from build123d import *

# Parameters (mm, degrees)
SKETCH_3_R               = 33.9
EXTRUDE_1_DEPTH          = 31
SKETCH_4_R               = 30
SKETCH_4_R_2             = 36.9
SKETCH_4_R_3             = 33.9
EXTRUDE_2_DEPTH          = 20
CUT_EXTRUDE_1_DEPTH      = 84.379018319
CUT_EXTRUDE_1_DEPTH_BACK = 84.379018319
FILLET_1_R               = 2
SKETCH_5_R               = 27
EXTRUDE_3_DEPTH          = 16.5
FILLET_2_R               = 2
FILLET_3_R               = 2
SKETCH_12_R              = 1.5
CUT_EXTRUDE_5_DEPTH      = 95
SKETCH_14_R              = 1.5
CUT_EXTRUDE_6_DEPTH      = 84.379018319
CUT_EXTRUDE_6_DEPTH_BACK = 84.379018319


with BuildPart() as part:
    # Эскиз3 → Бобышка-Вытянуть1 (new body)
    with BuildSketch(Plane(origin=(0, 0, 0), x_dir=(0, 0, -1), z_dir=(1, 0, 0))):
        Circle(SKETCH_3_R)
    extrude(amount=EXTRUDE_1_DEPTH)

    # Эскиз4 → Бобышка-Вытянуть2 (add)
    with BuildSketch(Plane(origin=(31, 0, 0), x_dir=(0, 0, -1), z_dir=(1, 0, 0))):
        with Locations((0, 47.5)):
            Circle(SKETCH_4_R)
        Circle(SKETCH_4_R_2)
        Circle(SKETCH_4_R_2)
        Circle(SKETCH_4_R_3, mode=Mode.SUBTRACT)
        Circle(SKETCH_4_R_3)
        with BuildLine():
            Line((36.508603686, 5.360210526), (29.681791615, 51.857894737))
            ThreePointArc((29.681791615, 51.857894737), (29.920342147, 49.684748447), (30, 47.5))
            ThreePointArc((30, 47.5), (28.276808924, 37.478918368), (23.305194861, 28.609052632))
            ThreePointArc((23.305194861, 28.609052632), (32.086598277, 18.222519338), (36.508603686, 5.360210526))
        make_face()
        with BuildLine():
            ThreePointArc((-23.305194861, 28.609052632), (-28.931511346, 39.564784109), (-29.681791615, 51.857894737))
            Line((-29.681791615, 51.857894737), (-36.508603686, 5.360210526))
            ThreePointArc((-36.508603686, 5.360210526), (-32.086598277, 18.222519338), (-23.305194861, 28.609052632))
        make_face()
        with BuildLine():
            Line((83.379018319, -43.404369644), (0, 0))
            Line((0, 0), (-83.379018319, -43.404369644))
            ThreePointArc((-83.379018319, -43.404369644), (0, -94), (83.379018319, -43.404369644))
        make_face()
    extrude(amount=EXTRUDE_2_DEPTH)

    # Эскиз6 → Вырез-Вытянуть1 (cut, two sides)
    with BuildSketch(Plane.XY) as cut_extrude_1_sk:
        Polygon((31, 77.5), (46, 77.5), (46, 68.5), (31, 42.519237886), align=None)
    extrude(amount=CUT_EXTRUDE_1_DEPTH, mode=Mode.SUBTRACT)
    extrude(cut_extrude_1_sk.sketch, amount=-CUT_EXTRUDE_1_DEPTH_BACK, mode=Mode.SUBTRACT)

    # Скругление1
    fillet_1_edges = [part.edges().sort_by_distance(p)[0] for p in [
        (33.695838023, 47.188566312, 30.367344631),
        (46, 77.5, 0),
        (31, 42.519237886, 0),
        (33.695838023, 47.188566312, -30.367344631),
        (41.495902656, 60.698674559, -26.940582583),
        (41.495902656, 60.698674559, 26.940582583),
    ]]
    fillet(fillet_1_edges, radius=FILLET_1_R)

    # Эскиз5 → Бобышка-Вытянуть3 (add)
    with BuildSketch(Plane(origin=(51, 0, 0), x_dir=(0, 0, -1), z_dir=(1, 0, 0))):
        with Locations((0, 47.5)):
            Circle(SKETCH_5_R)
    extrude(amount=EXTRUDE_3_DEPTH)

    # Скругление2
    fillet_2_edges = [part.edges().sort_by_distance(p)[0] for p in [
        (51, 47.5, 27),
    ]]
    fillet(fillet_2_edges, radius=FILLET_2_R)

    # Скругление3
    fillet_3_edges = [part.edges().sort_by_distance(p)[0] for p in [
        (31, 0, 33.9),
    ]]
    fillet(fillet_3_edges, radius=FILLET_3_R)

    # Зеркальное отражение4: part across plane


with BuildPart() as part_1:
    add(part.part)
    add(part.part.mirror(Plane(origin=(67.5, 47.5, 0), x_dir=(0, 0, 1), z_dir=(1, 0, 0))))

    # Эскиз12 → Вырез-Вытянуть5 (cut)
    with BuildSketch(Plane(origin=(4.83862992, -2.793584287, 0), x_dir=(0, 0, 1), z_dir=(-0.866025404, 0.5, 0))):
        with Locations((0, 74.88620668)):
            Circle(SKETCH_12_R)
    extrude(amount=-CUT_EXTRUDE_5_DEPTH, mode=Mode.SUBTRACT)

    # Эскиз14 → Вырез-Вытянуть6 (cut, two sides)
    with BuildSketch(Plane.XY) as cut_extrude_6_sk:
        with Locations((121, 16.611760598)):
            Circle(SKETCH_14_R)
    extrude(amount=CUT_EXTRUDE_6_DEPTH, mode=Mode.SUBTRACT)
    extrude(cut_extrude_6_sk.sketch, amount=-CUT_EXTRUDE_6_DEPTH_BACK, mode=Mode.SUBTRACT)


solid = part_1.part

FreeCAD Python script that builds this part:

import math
import FreeCAD as App
import Part
import Sketcher
Q = App.Units.Quantity


def edges_at(feature, points):
    """Names of the edges that pass closest to the given points."""
    edges = feature.Shape.Edges
    near = lambda p: min(range(len(edges)), key=lambda i: edges[i].distToShape(Part.Vertex(*p))[0])
    return sorted({f"Edge{near(p) + 1}" for p in points})


def add_polygon(sketch, points):
    """Adds a closed chain of lines whose ends are joined by coincident constraints."""
    first, n = sketch.GeometryCount, len(points)
    for a, b in zip(points, points[1:] + points[:1]):
        sketch.addGeometry(Part.LineSegment(App.Vector(*a, 0), App.Vector(*b, 0)), False)
    for i in range(n):
        sketch.addConstraint(Sketcher.Constraint("Coincident", first + i, 2, first + (i + 1) % n, 1))

doc = App.newDocument("Part")
body = doc.addObject("PartDesign::Body", "Body")

# Sketch on YZ plane
sketch1 = doc.addObject("Sketcher::SketchObject", "Sketch")
body.addObject(sketch1)
sketch1.AttachmentSupport = (doc.YZ_Plane, [""])
sketch1.MapMode = "FlatFace"
sketch1.addGeometry(Part.Circle(App.Vector(0, 0, 0), App.Vector(0, 0, 1), 34), False)
sketch1.addConstraint([
    Sketcher.Constraint("Coincident", 0, 3, -1, 1),
    Sketcher.Constraint("Diameter", 0, Q("67.8 mm")),
])
pad1 = doc.addObject("PartDesign::Pad", "Pad")
body.addObject(pad1)
pad1.Profile = sketch1
pad1.Length = 31

# Sketch on YZ plane
sketch2 = doc.addObject("Sketcher::SketchObject", "Sketch001")
body.addObject(sketch2)
sketch2.AttachmentSupport = (doc.YZ_Plane, [""])
sketch2.MapMode = "FlatFace"
sketch2.AttachmentOffset = App.Placement(App.Vector(0, 0, 31), App.Rotation())
sketch2.addGeometry([
    Part.LineSegment(App.Vector(5, -37, 0), App.Vector(52, -30, 0)),  # 0
    Part.ArcOfCircle(Part.Circle(App.Vector(48, 0, 0), App.Vector(0, 0, 1), 30), math.radians(-82), math.radians(82)),  # 1
    Part.LineSegment(App.Vector(52, 30, 0), App.Vector(5, 37, 0)),  # 2
    Part.ArcOfCircle(Part.Circle(App.Vector(0, 0, 0), App.Vector(0, 0, 1), 37), math.radians(82), math.radians(117)),  # 3
    Part.LineSegment(App.Vector(-17, 33, 0), App.Vector(-43, 83, 0)),  # 4
    Part.ArcOfCircle(Part.Circle(App.Vector(0, 0, 0), App.Vector(0, 0, 1), 94), math.radians(117), math.radians(243)),  # 5
    Part.LineSegment(App.Vector(-43, -83, 0), App.Vector(-17, -33, 0)),  # 6
    Part.ArcOfCircle(Part.Circle(App.Vector(0, 0, 0), App.Vector(0, 0, 1), 37), math.radians(-117), math.radians(-82)),  # 7
], False)
sketch2.addConstraint([
    Sketcher.Constraint("Tangent", 0, 2, 1, 1),
    Sketcher.Constraint("Tangent", 1, 2, 2, 1),
    Sketcher.Constraint("Tangent", 2, 2, 3, 1),
    Sketcher.Constraint("Coincident", 3, 2, 4, 1),
    Sketcher.Constraint("Coincident", 4, 2, 5, 1),
    Sketcher.Constraint("Coincident", 5, 2, 6, 1),
    Sketcher.Constraint("Coincident", 6, 2, 7, 1),
    Sketcher.Constraint("Tangent", 7, 2, 0, 1),
    Sketcher.Constraint("Coincident", 3, 3, -1, 1),
    Sketcher.Constraint("Coincident", 5, 3, -1, 1),
    Sketcher.Constraint("Coincident", 7, 3, -1, 1),
    Sketcher.Constraint("Equal", 3, 7),
    Sketcher.Constraint("PointOnObject", 1, 3, -1),
    Sketcher.Constraint("Vertical", 4, 2, 5, 2),
    Sketcher.Constraint("Vertical", 3, 2, 6, 2),
    Sketcher.Constraint("Radius", 1, Q("30 mm")),
    Sketcher.Constraint("Radius", 5, Q("94 mm")),
    Sketcher.Constraint("Radius", 3, Q("36.9 mm")),
    Sketcher.Constraint("Angle", 4, Q("117.5 deg")),
    Sketcher.Constraint("DistanceX", -1, 1, 1, 3, Q("47.5 mm")),
    Sketcher.Constraint("DistanceY", -1, 1, 3, 2, Q("32.7307 mm")),
])
pad2 = doc.addObject("PartDesign::Pad", "Pad001")
body.addObject(pad2)
pad2.Profile = sketch2
pad2.Length = 20

# Sketch on XY plane
sketch3 = doc.addObject("Sketcher::SketchObject", "Sketch002")
body.addObject(sketch3)
sketch3.AttachmentSupport = (doc.XY_Plane, [""])
sketch3.MapMode = "FlatFace"
add_polygon(sketch3, [(46, 78), (31, 78), (31, 43), (46, 68)])  # lines 0-3
sketch3.addConstraint([
    Sketcher.Constraint("Horizontal", 0),
    Sketcher.Constraint("Vertical", 1),
    Sketcher.Constraint("Vertical", 3),
    Sketcher.Constraint("DistanceX", 0, 2, 0, 1, Q("15 mm")),
    Sketcher.Constraint("DistanceY", 3, 1, 3, 2, Q("9 mm")),
    Sketcher.Constraint("Angle", 2, Q("60 deg")),
    Sketcher.Constraint("DistanceX", -1, 1, 0, 2, Q("31 mm")),
    Sketcher.Constraint("DistanceY", -1, 1, 0, 2, Q("77.5 mm")),
])
pocket1 = doc.addObject("PartDesign::Pocket", "Pocket")
body.addObject(pocket1)
pocket1.Profile = sketch3
pocket1.Type = "ThroughAll"
pocket1.Midplane = True
doc.recompute()

fillet = doc.addObject("PartDesign::Fillet", "Fillet")
body.addObject(fillet)
fillet.Base = (pocket1, edges_at(pocket1, [
    (33.696, 47.189, 30.367),
    (46, 77.5, 0),
    (31, 42.519, 0),
    (33.696, 47.189, -30.367),
    (41.496, 60.699, -26.941),
    (41.496, 60.699, 26.941),
]))
fillet.Radius = 2

# Sketch on YZ plane
sketch4 = doc.addObject("Sketcher::SketchObject", "Sketch003")
body.addObject(sketch4)
sketch4.AttachmentSupport = (doc.YZ_Plane, [""])
sketch4.MapMode = "FlatFace"
sketch4.AttachmentOffset = App.Placement(App.Vector(0, 0, 51), App.Rotation())
sketch4.addGeometry(Part.Circle(App.Vector(48, 0, 0), App.Vector(0, 0, 1), 27), False)
sketch4.addConstraint([
    Sketcher.Constraint("PointOnObject", 0, 3, -1),
    Sketcher.Constraint("Diameter", 0, Q("54 mm")),
    Sketcher.Constraint("DistanceX", -1, 1, 0, 3, Q("47.5 mm")),
])
pad3 = doc.addObject("PartDesign::Pad", "Pad002")
body.addObject(pad3)
pad3.Profile = sketch4
pad3.Length = 16.5
doc.recompute()

fillet2 = doc.addObject("PartDesign::Fillet", "Fillet001")
body.addObject(fillet2)
fillet2.Base = (pad3, edges_at(pad3, [(51, 47.5, 27)]))
fillet2.Radius = 2
doc.recompute()

fillet3 = doc.addObject("PartDesign::Fillet", "Fillet002")
body.addObject(fillet3)
fillet3.Base = (fillet2, edges_at(fillet2, [(31, 0, 33.9)]))
fillet3.Radius = 2
body2 = doc.addObject("PartDesign::Body", "Body001")
doc.recompute()

body2.BaseFeature = body
doc.recompute()

mirroring = doc.addObject("Part::Mirroring", "Mirroring")
mirroring.Source = body
mirroring.Base = App.Vector(67.5, 47.5, 0)
mirroring.Normal = App.Vector(1, 0, 0)
body3 = doc.addObject("PartDesign::Body", "Body002")
body3.BaseFeature = mirroring
boolean = doc.addObject("PartDesign::Boolean", "Boolean")
body2.addObject(boolean)
boolean.Type = "Fuse"
boolean.addObjects([body3])
doc.recompute()

# Sketch on an angled plane
sketch5 = doc.addObject("Sketcher::SketchObject", "Sketch004")
body2.addObject(sketch5)
sketch5.Placement = App.Placement(App.Vector(4.83863, -2.793584, 0), App.Rotation(App.Vector(0, 0, 1), App.Vector(0.5, 0.866025404, 0), App.Vector(-0.866025404, 0.5, 0), "ZXY"))
sketch5.addGeometry(Part.Circle(App.Vector(0, 74.9, 0), App.Vector(0, 0, 1), 1.5), False)
sketch5.addConstraint([
    Sketcher.Constraint("PointOnObject", 0, 3, -2),
    Sketcher.Constraint("Diameter", 0, Q("3 mm")),
    Sketcher.Constraint("DistanceY", -1, 1, 0, 3, Q("74.886207 mm")),
])
pocket2 = doc.addObject("PartDesign::Pocket", "Pocket001")
body2.addObject(pocket2)
pocket2.Profile = sketch5
pocket2.Length = 95

# Sketch on XY plane
sketch6 = doc.addObject("Sketcher::SketchObject", "Sketch005")
body2.addObject(sketch6)
sketch6.AttachmentSupport = (doc.getObject("XY_Plane001"), [""])
sketch6.MapMode = "FlatFace"
sketch6.addGeometry(Part.Circle(App.Vector(121, 16.6, 0), App.Vector(0, 0, 1), 1.5), False)
sketch6.addConstraint([
    Sketcher.Constraint("Diameter", 0, Q("3 mm")),
    Sketcher.Constraint("DistanceX", -1, 1, 0, 3, Q("121 mm")),
    Sketcher.Constraint("DistanceY", -1, 1, 0, 3, Q("16.611761 mm")),
])
pocket3 = doc.addObject("PartDesign::Pocket", "Pocket002")
body2.addObject(pocket3)
pocket3.Profile = sketch6
pocket3.Type = "ThroughAll"
pocket3.Midplane = True
mirroring.Visibility = False

doc.recompute()
